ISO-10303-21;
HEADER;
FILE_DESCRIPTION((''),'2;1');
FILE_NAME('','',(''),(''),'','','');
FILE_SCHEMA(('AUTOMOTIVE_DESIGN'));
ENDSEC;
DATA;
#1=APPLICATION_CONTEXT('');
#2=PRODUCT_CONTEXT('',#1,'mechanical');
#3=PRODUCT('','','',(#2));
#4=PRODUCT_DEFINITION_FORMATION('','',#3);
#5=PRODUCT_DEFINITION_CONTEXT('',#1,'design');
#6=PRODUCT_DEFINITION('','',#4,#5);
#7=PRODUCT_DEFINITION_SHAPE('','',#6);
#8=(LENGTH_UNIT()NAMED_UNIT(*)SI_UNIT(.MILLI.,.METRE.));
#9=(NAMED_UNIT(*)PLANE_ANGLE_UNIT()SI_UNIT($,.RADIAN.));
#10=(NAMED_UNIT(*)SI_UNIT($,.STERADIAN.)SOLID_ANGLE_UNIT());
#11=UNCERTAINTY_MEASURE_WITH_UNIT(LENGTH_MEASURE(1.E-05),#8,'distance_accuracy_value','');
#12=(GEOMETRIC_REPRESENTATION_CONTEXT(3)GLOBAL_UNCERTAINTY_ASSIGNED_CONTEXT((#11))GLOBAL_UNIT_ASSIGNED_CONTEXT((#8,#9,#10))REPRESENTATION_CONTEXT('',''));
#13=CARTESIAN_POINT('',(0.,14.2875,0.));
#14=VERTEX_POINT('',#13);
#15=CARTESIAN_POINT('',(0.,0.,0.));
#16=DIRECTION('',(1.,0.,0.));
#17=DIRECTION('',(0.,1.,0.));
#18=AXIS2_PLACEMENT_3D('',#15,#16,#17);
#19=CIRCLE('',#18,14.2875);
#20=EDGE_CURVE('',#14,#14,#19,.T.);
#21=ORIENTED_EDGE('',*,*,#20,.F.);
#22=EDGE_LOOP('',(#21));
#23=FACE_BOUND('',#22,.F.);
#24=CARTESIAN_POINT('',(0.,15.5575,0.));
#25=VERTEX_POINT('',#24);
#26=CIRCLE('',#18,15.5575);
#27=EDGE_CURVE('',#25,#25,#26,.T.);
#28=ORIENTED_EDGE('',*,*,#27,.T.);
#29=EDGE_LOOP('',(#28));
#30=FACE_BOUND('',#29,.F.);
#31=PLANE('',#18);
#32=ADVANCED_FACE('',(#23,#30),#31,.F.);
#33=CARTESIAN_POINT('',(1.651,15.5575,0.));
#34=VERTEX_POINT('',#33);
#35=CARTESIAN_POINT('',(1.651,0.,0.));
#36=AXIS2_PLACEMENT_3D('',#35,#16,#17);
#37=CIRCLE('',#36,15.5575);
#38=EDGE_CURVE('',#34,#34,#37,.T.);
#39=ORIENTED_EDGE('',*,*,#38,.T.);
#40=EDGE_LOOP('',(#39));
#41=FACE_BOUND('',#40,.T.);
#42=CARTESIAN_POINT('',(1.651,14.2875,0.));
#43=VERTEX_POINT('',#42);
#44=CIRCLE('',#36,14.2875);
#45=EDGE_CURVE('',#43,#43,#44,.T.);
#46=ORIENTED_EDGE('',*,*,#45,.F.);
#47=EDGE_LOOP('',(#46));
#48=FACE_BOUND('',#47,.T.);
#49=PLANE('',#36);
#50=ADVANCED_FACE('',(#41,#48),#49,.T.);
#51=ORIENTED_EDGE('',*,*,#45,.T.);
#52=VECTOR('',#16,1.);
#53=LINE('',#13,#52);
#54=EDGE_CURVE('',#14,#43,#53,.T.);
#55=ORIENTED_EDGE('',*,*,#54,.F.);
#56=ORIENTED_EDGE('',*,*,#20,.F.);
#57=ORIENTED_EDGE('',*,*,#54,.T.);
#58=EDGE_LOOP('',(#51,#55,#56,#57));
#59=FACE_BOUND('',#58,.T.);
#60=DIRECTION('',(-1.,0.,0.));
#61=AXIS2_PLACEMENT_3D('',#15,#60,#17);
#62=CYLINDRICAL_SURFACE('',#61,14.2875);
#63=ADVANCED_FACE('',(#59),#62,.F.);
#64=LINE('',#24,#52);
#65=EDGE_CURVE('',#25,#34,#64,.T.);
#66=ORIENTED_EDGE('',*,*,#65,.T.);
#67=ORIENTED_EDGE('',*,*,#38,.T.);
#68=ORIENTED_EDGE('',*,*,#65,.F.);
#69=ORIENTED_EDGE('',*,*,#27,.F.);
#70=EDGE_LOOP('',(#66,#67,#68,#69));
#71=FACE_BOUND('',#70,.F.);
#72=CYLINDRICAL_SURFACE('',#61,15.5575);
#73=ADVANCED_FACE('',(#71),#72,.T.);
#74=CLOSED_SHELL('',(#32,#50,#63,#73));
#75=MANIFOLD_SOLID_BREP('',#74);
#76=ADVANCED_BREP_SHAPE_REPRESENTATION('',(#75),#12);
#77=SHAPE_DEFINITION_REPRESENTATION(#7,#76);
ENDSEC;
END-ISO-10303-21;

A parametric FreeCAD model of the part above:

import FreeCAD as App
import Part
import Sketcher
from FreeCAD import Vector
Q = App.Units.Quantity

doc = App.newDocument("Part")
body = doc.addObject("PartDesign::Body", "Body")

# Sketch on YZ plane
sketch1 = doc.addObject("Sketcher::SketchObject", "Sketch")
body.addObject(sketch1)
sketch1.AttachmentSupport = (doc.YZ_Plane, [""])
sketch1.MapMode = "FlatFace"
sketch1.addGeometry([
    Part.Circle(Vector(0, 0, 0), Vector(0, 0, 1), 16),
    Part.Circle(Vector(0, 0, 0), Vector(0, 0, 1), 14),
], False)
sketch1.addConstraint([
    Sketcher.Constraint("Coincident", 0, 3, -1, 1),
    Sketcher.Constraint("Coincident", 1, 3, -1, 1),
    Sketcher.Constraint("Diameter", 0, Q("1.225 in")),
    Sketcher.Constraint("Diameter", 1, Q("1.125 in")),
])
pad1 = doc.addObject("PartDesign::Pad", "Pad")
body.addObject(pad1)
pad1.Profile = sketch1
pad1.Length = Q("0.065 in")

doc.recompute()
